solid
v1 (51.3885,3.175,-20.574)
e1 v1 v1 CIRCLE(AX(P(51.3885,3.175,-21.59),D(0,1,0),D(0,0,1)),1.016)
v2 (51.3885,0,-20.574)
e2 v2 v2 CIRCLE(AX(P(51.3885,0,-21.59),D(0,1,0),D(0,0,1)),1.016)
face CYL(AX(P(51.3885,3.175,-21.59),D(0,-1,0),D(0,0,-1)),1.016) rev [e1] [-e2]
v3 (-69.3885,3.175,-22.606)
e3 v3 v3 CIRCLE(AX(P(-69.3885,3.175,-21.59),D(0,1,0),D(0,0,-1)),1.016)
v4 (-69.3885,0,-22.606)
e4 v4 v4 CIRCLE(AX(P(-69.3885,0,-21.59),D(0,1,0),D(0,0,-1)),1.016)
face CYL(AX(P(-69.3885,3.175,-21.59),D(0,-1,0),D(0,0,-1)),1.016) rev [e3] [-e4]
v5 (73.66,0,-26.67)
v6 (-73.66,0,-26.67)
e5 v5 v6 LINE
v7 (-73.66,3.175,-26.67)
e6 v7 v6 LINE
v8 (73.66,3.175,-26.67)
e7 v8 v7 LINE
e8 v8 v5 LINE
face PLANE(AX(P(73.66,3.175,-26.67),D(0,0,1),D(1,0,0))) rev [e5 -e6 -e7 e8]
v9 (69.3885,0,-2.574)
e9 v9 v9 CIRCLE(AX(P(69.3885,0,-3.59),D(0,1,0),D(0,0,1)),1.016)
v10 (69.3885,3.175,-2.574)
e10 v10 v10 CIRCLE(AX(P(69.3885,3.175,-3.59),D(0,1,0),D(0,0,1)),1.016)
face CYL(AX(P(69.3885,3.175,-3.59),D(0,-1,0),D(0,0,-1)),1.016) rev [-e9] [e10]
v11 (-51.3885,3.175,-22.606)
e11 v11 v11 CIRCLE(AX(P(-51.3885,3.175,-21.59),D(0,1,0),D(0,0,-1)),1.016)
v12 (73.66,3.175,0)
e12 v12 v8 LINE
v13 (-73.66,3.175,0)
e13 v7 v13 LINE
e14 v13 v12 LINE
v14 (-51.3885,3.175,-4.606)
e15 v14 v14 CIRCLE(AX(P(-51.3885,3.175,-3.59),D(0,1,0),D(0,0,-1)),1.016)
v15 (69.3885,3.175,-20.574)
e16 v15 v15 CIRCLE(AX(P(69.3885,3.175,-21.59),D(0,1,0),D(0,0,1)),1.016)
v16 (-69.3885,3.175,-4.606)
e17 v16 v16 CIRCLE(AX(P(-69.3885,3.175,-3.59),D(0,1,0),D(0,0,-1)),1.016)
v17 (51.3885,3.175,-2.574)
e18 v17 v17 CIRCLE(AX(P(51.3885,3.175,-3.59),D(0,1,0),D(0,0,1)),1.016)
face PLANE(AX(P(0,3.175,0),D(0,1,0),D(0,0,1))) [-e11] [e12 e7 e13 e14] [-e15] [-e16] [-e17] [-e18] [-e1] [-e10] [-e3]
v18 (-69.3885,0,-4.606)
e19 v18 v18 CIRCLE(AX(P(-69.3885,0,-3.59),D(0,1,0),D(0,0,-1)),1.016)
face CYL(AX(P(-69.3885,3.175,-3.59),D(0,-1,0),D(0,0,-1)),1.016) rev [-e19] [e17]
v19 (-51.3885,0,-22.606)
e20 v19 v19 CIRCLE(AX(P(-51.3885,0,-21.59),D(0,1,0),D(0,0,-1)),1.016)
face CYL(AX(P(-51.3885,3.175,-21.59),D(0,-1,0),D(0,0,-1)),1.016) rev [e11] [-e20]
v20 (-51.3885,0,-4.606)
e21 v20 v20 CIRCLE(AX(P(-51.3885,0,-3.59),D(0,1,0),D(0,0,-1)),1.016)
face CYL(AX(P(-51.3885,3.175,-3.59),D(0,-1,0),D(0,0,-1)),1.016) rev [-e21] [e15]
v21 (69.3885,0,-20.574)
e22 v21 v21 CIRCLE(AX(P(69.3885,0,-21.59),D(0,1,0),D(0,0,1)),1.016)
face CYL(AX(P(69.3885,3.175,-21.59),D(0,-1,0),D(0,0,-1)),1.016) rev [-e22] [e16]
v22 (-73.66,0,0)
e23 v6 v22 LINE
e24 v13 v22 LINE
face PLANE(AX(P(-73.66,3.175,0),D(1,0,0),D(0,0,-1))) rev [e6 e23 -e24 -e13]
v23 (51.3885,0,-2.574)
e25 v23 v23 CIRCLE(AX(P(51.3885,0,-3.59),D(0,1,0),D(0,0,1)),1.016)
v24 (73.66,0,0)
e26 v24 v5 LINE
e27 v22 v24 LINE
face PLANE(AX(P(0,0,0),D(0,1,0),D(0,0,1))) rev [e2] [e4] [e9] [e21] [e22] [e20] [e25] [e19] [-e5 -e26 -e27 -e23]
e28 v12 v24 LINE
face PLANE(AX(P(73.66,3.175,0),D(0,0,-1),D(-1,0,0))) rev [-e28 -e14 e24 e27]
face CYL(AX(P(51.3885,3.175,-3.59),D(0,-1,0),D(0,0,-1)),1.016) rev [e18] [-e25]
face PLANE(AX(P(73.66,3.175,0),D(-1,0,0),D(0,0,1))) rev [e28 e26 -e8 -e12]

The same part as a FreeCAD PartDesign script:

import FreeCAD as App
import Part
import Sketcher
Q = App.Units.Quantity

doc = App.newDocument("Part")
body = doc.addObject("PartDesign::Body", "Body")

sketch1 = doc.addObject("Sketcher::SketchObject", "Sketch")
body.addObject(sketch1)
sketch1.AttachmentSupport = (doc.XZ_Plane, [""])
sketch1.MapMode = "FlatFace"
sketch1.addGeometry([
    Part.LineSegment(App.Vector(-73.66, -26.67, 0), App.Vector(-73.66, 0, 0)),
    Part.LineSegment(App.Vector(-73.66, 0, 0), App.Vector(73.66, 0, 0)),
    Part.LineSegment(App.Vector(73.66, 0, 0), App.Vector(73.66, -26.67, 0)),
    Part.LineSegment(App.Vector(73.66, -26.67, 0), App.Vector(-73.66, -26.67, 0)),
    Part.Circle(App.Vector(-69.3885, -3.59, 0), App.Vector(0, 0, 1), 1.016),
    Part.Circle(App.Vector(-51.3885, -3.59, 0), App.Vector(0, 0, 1), 1.016),
    Part.Circle(App.Vector(51.3885, -3.59, 0), App.Vector(0, 0, 1), 1.016),
    Part.Circle(App.Vector(69.3885, -3.59, 0), App.Vector(0, 0, 1), 1.016),
    Part.Circle(App.Vector(-69.3885, -21.59, 0), App.Vector(0, 0, 1), 1.016),
    Part.Circle(App.Vector(-51.3885, -21.59, 0), App.Vector(0, 0, 1), 1.016),
    Part.Circle(App.Vector(51.3885, -21.59, 0), App.Vector(0, 0, 1), 1.016),
    Part.Circle(App.Vector(69.3885, -21.59, 0), App.Vector(0, 0, 1), 1.016),
], False)
sketch1.addConstraint([
    Sketcher.Constraint("Coincident", 0, 2, 1, 1),
    Sketcher.Constraint("Coincident", 1, 2, 2, 1),
    Sketcher.Constraint("Coincident", 2, 2, 3, 1),
    Sketcher.Constraint("Coincident", 3, 2, 0, 1),
    Sketcher.Constraint("Vertical", 0),
    Sketcher.Constraint("Horizontal", 1),
    Sketcher.Constraint("Vertical", 2),
    Sketcher.Constraint("Horizontal", 3),
    Sketcher.Constraint("Equal", 4, 5),
    Sketcher.Constraint("Equal", 5, 6),
    Sketcher.Constraint("Equal", 6, 7),
    Sketcher.Constraint("Equal", 7, 8),
    Sketcher.Constraint("Equal", 8, 9),
    Sketcher.Constraint("Equal", 9, 10),
    Sketcher.Constraint("Equal", 10, 11),
    Sketcher.Constraint("Symmetric", 0, 2, 1, 2, -1, 1),
    Sketcher.Constraint("Symmetric", 5, 3, 6, 3, -2),
    Sketcher.Constraint("Symmetric", 4, 3, 7, 3, -2),
    Sketcher.Constraint("Symmetric", 9, 3, 10, 3, -2),
    Sketcher.Constraint("Symmetric", 8, 3, 11, 3, -2),
    Sketcher.Constraint("Horizontal", 4, 3, 5, 3),
    Sketcher.Constraint("Horizontal", 8, 3, 9, 3),
    Sketcher.Constraint("Vertical", 4, 3, 8, 3),
    Sketcher.Constraint("Vertical", 5, 3, 9, 3),
    Sketcher.Constraint("Diameter", 4, Q("0.08 in")),
    Sketcher.Constraint("DistanceX", 1, 1, 1, 2, Q("5.8 in")),
    Sketcher.Constraint("DistanceY", 0, 1, 0, 2, Q("1.05 in")),
    Sketcher.Constraint("DistanceY", 2, 2, 11, 3, Q("0.2 in")),
    Sketcher.Constraint("DistanceX", 4, 3, 6, 3, Q("4.755 in")),
    Sketcher.Constraint("DistanceX", 4, 3, -1, 1, 69.3885),
    Sketcher.Constraint("DistanceY", 4, 3, -1, 1, 3.59),
])
pad1 = doc.addObject("PartDesign::Pad", "Pad")
body.addObject(pad1)
pad1.Profile = sketch1
pad1.Length = Q("0.125 in")
pad1.Reversed = True

doc.recompute()
